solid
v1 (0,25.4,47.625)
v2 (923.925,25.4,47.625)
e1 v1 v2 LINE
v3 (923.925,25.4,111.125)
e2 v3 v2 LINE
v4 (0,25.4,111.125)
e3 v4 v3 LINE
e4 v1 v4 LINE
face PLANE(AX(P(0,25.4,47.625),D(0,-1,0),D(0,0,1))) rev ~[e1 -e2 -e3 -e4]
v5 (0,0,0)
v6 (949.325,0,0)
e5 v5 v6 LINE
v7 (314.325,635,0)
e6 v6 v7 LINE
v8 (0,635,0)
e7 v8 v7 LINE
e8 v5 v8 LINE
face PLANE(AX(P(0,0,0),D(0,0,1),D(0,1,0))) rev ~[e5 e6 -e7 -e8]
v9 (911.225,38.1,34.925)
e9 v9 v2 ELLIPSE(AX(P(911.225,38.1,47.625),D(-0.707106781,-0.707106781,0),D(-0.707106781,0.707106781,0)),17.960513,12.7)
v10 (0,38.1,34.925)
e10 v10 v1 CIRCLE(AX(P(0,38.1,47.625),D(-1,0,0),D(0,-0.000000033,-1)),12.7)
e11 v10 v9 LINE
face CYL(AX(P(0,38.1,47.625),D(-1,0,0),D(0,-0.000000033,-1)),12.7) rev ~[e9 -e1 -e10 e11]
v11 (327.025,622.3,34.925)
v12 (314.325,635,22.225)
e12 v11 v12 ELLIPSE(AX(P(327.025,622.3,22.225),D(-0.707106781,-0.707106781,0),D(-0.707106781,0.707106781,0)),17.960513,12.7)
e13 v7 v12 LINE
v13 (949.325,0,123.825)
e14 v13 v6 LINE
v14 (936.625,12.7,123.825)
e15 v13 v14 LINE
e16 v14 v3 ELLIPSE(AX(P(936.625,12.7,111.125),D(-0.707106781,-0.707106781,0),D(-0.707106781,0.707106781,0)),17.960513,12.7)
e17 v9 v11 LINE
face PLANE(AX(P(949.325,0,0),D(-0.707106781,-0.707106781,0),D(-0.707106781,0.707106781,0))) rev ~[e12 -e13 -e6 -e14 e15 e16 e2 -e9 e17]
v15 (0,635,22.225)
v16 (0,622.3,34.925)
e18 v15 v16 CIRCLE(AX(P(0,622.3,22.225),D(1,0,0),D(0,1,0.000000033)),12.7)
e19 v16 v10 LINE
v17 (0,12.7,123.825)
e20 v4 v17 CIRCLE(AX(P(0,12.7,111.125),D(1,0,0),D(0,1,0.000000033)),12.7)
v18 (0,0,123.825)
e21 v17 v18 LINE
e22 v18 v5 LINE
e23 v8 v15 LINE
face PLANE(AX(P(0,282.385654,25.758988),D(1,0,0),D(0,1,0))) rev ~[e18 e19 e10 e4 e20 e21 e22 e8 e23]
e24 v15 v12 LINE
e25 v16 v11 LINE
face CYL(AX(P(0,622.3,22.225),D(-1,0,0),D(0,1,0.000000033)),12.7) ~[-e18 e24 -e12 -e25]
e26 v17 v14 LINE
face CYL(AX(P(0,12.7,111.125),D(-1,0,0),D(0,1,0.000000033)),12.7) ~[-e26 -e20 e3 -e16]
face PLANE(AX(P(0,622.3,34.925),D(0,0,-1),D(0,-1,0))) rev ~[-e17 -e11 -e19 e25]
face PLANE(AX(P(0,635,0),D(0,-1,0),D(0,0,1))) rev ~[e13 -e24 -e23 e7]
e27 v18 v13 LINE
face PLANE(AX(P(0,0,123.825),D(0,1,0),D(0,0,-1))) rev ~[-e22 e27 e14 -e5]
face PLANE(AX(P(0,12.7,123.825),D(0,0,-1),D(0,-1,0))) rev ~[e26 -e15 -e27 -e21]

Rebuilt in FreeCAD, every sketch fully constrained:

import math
import FreeCAD as App
import Part
import Sketcher

V = App.Vector
Q = App.Units.Quantity


def add_polygon(sketch, points):
    """Adds a closed chain of lines whose ends are joined by coincident constraints."""
    first, n = sketch.GeometryCount, len(points)
    for a, b in zip(points, points[1:] + points[:1]):
        sketch.addGeometry(Part.LineSegment(App.Vector(*a, 0), App.Vector(*b, 0)), False)
    for i in range(n):
        sketch.addConstraint(Sketcher.Constraint("Coincident", first + i, 2, first + (i + 1) % n, 1))

doc = App.newDocument("Part")
params = doc.addObject("Spreadsheet::Sheet", "Params")
for row, (alias, value) in enumerate([
    ("sketch1_radius", "0.5 in"),
    ("sketch1_width", "25 in"),
    ("sketch1_width2", "23 in"),
    ("sketch1_height", "2.5 in"),
    ("sketch1_height2", "0.875 in"),
    ("pad1_length", "37.375 in"),
    ("sketch2_width", "25 in"),
    ("pocket1_length", "10 in"),
], start=1):
    params.set(f"A{row}", alias)
    params.set(f"B{row}", "=" + value)
    params.setAlias(f"B{row}", alias)

body = doc.addObject("PartDesign::Body", "Body")

# Sketch on YZ plane
sketch1 = body.newObject("Sketcher::SketchObject", "Sketch")
sketch1.AttachmentSupport = (doc.getObject("YZ_Plane"), [""])
sketch1.MapMode = "FlatFace"
sketch1.addGeometry([
    Part.LineSegment(V(0, 0, 0), V(635, 0, 0)),  # 0
    Part.LineSegment(V(635, 0, 0), V(635, 22, 0)),  # 1
    Part.ArcOfCircle(Part.Circle(V(622, 22, 0), V(0, 0, 1), 13), math.radians(0), math.radians(90)),  # 2
    Part.LineSegment(V(622, 35, 0), V(38, 35, 0)),  # 3
    Part.ArcOfCircle(Part.Circle(V(38, 48, 0), V(0, 0, 1), 13), math.radians(-180), math.radians(-90)),  # 4
    Part.LineSegment(V(25, 48, 0), V(25, 111, 0)),  # 5
    Part.ArcOfCircle(Part.Circle(V(13, 111, 0), V(0, 0, 1), 13), math.radians(0), math.radians(90)),  # 6
    Part.LineSegment(V(13, 124, 0), V(0, 124, 0)),  # 7
    Part.LineSegment(V(0, 124, 0), V(0, 0, 0)),  # 8
], False)
sketch1.addConstraint([
    Sketcher.Constraint("Coincident", 0, 2, 1, 1),
    Sketcher.Constraint("Tangent", 1, 2, 2, 1),
    Sketcher.Constraint("Tangent", 2, 2, 3, 1),
    Sketcher.Constraint("Tangent", 3, 2, 4, 2),
    Sketcher.Constraint("Tangent", 4, 1, 5, 1),
    Sketcher.Constraint("Tangent", 5, 2, 6, 1),
    Sketcher.Constraint("Tangent", 6, 2, 7, 1),
    Sketcher.Constraint("Coincident", 7, 2, 8, 1),
    Sketcher.Constraint("Coincident", 8, 2, 0, 1),
    Sketcher.Constraint("Horizontal", 0),
    Sketcher.Constraint("Vertical", 1),
    Sketcher.Constraint("Horizontal", 3),
    Sketcher.Constraint("Vertical", 5),
    Sketcher.Constraint("Horizontal", 7),
    Sketcher.Constraint("Vertical", 8),
    Sketcher.Constraint("Coincident", 8, 2, -1, 1),
    Sketcher.Constraint("Equal", 2, 4),
    Sketcher.Constraint("Equal", 4, 6),
    Sketcher.Constraint("Radius", 2, Q("0.5 in")),
    Sketcher.Constraint("DistanceX", 0, 1, 0, 2, Q("25 in")),
    Sketcher.Constraint("DistanceX", 3, 2, 3, 1, Q("23 in")),
    Sketcher.Constraint("DistanceY", 5, 1, 5, 2, Q("2.5 in")),
    Sketcher.Constraint("DistanceY", 1, 1, 1, 2, Q("0.875 in")),
])
sketch1.setExpression("Constraints[18]", "Params.sketch1_radius")
sketch1.setExpression("Constraints[19]", "Params.sketch1_width")
sketch1.setExpression("Constraints[20]", "Params.sketch1_width2")
sketch1.setExpression("Constraints[21]", "Params.sketch1_height")
sketch1.setExpression("Constraints[22]", "Params.sketch1_height2")
pad1 = body.newObject("PartDesign::Pad", "Pad")
pad1.Profile = sketch1
pad1.setExpression("Length", "Params.pad1_length")

# Sketch on XY plane
sketch2 = body.newObject("Sketcher::SketchObject", "Sketch001")
sketch2.AttachmentSupport = (doc.getObject("XY_Plane"), [""])
sketch2.MapMode = "FlatFace"
add_polygon(sketch2, [(949, 635), (949, 0), (314, 635)])  # lines 0-2
sketch2.addConstraint([
    Sketcher.Constraint("Vertical", 0),
    Sketcher.Constraint("Horizontal", 2),
    Sketcher.Constraint("PointOnObject", 0, 2, -1),
    Sketcher.Constraint("Equal", 2, 0),
    Sketcher.Constraint("DistanceX", 2, 1, 2, 2, Q("25 in")),
    Sketcher.Constraint("DistanceX", -1, 1, 0, 2, Q("37.375 in")),
])
sketch2.setExpression("Constraints[7]", "Params.sketch2_width")
pocket1 = body.newObject("PartDesign::Pocket", "Pocket")
pocket1.Profile = sketch2
pocket1.setExpression("Length", "Params.pocket1_length")
pocket1.Reversed = True

doc.recompute()
